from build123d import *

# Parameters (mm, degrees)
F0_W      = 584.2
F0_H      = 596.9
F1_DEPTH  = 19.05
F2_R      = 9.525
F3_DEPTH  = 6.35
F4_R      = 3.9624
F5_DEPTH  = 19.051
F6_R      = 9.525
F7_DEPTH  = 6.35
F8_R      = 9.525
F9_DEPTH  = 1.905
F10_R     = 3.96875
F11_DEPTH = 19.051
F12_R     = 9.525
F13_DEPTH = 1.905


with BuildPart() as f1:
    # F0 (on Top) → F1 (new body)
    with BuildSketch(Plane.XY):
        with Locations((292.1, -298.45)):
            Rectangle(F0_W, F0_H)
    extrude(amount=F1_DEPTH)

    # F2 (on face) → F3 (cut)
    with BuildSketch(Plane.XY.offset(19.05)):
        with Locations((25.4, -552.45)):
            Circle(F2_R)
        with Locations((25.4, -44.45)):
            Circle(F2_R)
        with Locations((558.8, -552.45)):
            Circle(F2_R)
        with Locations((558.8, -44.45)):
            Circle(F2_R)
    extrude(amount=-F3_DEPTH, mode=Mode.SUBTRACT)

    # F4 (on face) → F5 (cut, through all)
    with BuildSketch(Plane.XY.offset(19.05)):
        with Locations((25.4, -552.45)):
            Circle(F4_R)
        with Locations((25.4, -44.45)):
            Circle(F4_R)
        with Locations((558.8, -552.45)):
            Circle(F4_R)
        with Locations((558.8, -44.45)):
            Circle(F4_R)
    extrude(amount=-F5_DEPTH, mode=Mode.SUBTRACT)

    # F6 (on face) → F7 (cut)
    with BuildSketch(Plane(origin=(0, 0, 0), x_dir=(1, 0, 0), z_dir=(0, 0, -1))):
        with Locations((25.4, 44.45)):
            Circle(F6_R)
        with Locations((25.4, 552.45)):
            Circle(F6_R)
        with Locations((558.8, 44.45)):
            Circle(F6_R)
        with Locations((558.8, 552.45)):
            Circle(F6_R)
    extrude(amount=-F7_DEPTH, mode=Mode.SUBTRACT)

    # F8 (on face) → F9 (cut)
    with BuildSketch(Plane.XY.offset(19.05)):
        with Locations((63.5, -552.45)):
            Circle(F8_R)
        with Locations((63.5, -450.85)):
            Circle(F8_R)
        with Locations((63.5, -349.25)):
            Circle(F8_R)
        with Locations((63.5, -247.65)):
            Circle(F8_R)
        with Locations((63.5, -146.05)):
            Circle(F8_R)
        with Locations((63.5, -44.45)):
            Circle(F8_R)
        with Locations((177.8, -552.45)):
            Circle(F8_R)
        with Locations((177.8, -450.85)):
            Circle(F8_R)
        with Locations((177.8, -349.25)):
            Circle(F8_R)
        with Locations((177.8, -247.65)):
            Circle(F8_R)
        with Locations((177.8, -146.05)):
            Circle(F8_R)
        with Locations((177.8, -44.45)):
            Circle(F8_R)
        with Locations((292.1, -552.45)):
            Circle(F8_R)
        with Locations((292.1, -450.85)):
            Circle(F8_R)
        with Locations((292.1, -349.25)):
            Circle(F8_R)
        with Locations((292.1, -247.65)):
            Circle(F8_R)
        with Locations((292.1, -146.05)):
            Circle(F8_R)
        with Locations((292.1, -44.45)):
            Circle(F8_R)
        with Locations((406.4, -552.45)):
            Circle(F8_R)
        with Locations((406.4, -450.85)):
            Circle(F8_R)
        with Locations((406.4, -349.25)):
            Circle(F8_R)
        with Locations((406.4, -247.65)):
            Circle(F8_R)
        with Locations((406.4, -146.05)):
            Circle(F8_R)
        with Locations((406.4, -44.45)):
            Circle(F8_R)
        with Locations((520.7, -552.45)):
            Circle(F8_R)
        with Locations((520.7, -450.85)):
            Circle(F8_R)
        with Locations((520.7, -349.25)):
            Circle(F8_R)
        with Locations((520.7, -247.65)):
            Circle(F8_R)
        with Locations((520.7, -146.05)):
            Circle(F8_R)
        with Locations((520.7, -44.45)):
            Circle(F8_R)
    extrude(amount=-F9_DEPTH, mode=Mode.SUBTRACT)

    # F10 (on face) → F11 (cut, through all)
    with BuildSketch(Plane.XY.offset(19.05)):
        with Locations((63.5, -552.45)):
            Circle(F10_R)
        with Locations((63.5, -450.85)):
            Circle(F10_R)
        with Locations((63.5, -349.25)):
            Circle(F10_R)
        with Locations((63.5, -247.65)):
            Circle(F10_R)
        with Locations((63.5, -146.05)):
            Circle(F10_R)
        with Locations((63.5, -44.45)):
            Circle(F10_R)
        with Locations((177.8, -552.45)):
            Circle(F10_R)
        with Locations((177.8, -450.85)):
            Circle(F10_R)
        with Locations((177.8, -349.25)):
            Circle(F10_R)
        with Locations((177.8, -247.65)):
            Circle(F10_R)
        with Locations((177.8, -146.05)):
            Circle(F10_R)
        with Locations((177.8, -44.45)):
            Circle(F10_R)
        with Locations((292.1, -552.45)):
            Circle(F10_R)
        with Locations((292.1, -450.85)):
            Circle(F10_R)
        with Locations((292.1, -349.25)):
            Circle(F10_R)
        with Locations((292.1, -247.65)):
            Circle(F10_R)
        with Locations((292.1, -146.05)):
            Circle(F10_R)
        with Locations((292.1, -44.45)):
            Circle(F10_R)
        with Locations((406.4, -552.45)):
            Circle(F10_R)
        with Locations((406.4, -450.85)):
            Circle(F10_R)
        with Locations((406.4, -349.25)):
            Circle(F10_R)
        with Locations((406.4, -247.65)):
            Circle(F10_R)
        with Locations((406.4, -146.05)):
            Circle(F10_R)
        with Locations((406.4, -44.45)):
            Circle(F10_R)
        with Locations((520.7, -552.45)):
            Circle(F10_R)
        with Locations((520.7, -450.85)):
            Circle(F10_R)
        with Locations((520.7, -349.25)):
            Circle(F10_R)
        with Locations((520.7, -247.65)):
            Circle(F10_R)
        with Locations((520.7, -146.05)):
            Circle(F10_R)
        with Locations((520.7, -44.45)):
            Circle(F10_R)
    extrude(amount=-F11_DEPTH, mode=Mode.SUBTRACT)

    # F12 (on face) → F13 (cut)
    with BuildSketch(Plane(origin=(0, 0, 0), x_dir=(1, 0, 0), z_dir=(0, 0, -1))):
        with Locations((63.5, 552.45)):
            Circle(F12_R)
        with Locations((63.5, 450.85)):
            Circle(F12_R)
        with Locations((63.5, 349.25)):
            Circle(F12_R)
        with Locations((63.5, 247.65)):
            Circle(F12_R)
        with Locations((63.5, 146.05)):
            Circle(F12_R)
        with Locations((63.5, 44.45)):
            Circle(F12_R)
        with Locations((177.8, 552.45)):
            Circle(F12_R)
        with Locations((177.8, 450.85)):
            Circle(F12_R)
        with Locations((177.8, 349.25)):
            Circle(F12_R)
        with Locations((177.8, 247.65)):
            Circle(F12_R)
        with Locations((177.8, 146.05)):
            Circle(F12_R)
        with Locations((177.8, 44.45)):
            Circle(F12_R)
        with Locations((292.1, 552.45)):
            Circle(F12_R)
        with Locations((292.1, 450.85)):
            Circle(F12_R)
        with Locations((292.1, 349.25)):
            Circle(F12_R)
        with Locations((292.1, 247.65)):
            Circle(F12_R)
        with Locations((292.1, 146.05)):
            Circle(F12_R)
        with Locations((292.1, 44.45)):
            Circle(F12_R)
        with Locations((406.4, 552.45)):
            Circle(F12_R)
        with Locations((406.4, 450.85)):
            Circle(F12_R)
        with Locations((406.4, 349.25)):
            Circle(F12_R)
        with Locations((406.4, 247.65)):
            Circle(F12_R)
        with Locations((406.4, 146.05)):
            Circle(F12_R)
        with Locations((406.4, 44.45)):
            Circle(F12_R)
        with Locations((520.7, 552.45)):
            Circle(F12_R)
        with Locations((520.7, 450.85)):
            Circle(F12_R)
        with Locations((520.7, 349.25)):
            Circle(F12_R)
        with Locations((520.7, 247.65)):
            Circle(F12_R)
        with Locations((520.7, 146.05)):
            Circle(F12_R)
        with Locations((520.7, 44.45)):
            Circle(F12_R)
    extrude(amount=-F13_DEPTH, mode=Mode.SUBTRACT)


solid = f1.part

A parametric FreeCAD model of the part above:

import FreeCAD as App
import Part
import Sketcher
from FreeCAD import Vector
Q = App.Units.Quantity

doc = App.newDocument("Part")
body = doc.addObject("PartDesign::Body", "Body")

sketch1 = doc.addObject("Sketcher::SketchObject", "Sketch")
body.addObject(sketch1)
sketch1.AttachmentSupport = (doc.XY_Plane, [""])
sketch1.MapMode = "FlatFace"
sketch1.addGeometry([
    Part.LineSegment(Vector(0, 0, 0), Vector(0, -597, 0)),
    Part.LineSegment(Vector(0, -597, 0), Vector(584, -597, 0)),
    Part.LineSegment(Vector(584, -597, 0), Vector(584, 0, 0)),
    Part.LineSegment(Vector(584, 0, 0), Vector(0, 0, 0)),
], False)
sketch1.addConstraint([
    Sketcher.Constraint("Coincident", 0, 2, 1, 1),
    Sketcher.Constraint("Coincident", 1, 2, 2, 1),
    Sketcher.Constraint("Coincident", 2, 2, 3, 1),
    Sketcher.Constraint("Coincident", 3, 2, 0, 1),
    Sketcher.Constraint("Vertical", 0),
    Sketcher.Constraint("Horizontal", 1),
    Sketcher.Constraint("Vertical", 2),
    Sketcher.Constraint("Horizontal", 3),
    Sketcher.Constraint("Coincident", 3, 2, -1, 1),
    Sketcher.Constraint("DistanceX", 1, 1, 1, 2, Q("23 in")),
    Sketcher.Constraint("DistanceY", 0, 2, 0, 1, Q("23.5 in")),
])
pad1 = doc.addObject("PartDesign::Pad", "Pad")
body.addObject(pad1)
pad1.Profile = sketch1
pad1.Length = Q("0.75 in")

sketch2 = doc.addObject("Sketcher::SketchObject", "Sketch001")
body.addObject(sketch2)
sketch2.AttachmentSupport = (doc.XY_Plane, [""])
sketch2.MapMode = "FlatFace"
sketch2.AttachmentOffset = App.Placement(Vector(0, 0, 0.75 * 25.4), App.Rotation())
sketch2.addGeometry([
    Part.Circle(Vector(25, -552, 0), Vector(0, 0, 1), 10),
    Part.Circle(Vector(25, -44, 0), Vector(0, 0, 1), 10),
    Part.Circle(Vector(559, -552, 0), Vector(0, 0, 1), 10),
    Part.Circle(Vector(559, -44, 0), Vector(0, 0, 1), 10),
], False)
sketch2.addConstraint([
    Sketcher.Constraint("Equal", 0, 1),
    Sketcher.Constraint("Equal", 1, 2),
    Sketcher.Constraint("Equal", 2, 3),
    Sketcher.Constraint("Horizontal", 0, 3, 2, 3),
    Sketcher.Constraint("Horizontal", 1, 3, 3, 3),
    Sketcher.Constraint("Vertical", 0, 3, 1, 3),
    Sketcher.Constraint("Vertical", 2, 3, 3, 3),
    Sketcher.Constraint("Diameter", 0, Q("0.75 in")),
    Sketcher.Constraint("DistanceX", -1, 1, 0, 3, Q("1 in")),
    Sketcher.Constraint("DistanceX", -1, 1, 2, 3, Q("22 in")),
    Sketcher.Constraint("DistanceY", 0, 3, 1, 3, Q("20 in")),
    Sketcher.Constraint("DistanceY", 0, 3, -1, 1, Q("21.75 in")),
])
pocket1 = doc.addObject("PartDesign::Pocket", "Pocket")
body.addObject(pocket1)
pocket1.Profile = sketch2
pocket1.Length = Q("0.25 in")

sketch3 = doc.addObject("Sketcher::SketchObject", "Sketch002")
body.addObject(sketch3)
sketch3.AttachmentSupport = (doc.XY_Plane, [""])
sketch3.MapMode = "FlatFace"
sketch3.AttachmentOffset = App.Placement(Vector(0, 0, 0.75 * 25.4), App.Rotation())
sketch3.addGeometry([
    Part.Circle(Vector(25.4, -552.5, 0), Vector(0, 0, 1), 4),
    Part.Circle(Vector(25.4, -44.5, 0), Vector(0, 0, 1), 4),
    Part.Circle(Vector(558.8, -552.5, 0), Vector(0, 0, 1), 4),
    Part.Circle(Vector(558.8, -44.5, 0), Vector(0, 0, 1), 4),
], False)
sketch3.addConstraint([
    Sketcher.Constraint("Equal", 0, 1),
    Sketcher.Constraint("Equal", 1, 2),
    Sketcher.Constraint("Equal", 2, 3),
    Sketcher.Constraint("Horizontal", 0, 3, 2, 3),
    Sketcher.Constraint("Horizontal", 1, 3, 3, 3),
    Sketcher.Constraint("Vertical", 0, 3, 1, 3),
    Sketcher.Constraint("Vertical", 2, 3, 3, 3),
    Sketcher.Constraint("Diameter", 0, Q("0.312 in")),
    Sketcher.Constraint("DistanceX", -1, 1, 0, 3, Q("1 in")),
    Sketcher.Constraint("DistanceX", -1, 1, 2, 3, Q("22 in")),
    Sketcher.Constraint("DistanceY", 0, 3, 1, 3, Q("20 in")),
    Sketcher.Constraint("DistanceY", 0, 3, -1, 1, Q("21.75 in")),
])
pocket2 = doc.addObject("PartDesign::Pocket", "Pocket001")
body.addObject(pocket2)
pocket2.Profile = sketch3
pocket2.Type = "ThroughAll"

sketch4 = doc.addObject("Sketcher::SketchObject", "Sketch003")
body.addObject(sketch4)
sketch4.AttachmentSupport = (doc.XY_Plane, [""])
sketch4.MapMode = "FlatFace"
sketch4.addGeometry([
    Part.Circle(Vector(25, -44, 0), Vector(0, 0, 1), 10),
    Part.Circle(Vector(25, -552, 0), Vector(0, 0, 1), 10),
    Part.Circle(Vector(559, -44, 0), Vector(0, 0, 1), 10),
    Part.Circle(Vector(559, -552, 0), Vector(0, 0, 1), 10),
], False)
sketch4.addConstraint([
    Sketcher.Constraint("Equal", 0, 1),
    Sketcher.Constraint("Equal", 1, 2),
    Sketcher.Constraint("Equal", 2, 3),
    Sketcher.Constraint("Horizontal", 0, 3, 2, 3),
    Sketcher.Constraint("Horizontal", 1, 3, 3, 3),
    Sketcher.Constraint("Vertical", 0, 3, 1, 3),
    Sketcher.Constraint("Vertical", 2, 3, 3, 3),
    Sketcher.Constraint("Diameter", 0, Q("0.75 in")),
    Sketcher.Constraint("DistanceX", -1, 1, 0, 3, Q("1 in")),
    Sketcher.Constraint("DistanceX", -1, 1, 2, 3, Q("22 in")),
    Sketcher.Constraint("DistanceY", 1, 3, 0, 3, Q("20 in")),
    Sketcher.Constraint("DistanceY", 0, 3, -1, 1, Q("1.75 in")),
])
pocket3 = doc.addObject("PartDesign::Pocket", "Pocket002")
body.addObject(pocket3)
pocket3.Profile = sketch4
pocket3.Length = Q("0.25 in")
pocket3.Reversed = True

sketch5 = doc.addObject("Sketcher::SketchObject", "Sketch004")
body.addObject(sketch5)
sketch5.AttachmentSupport = (doc.XY_Plane, [""])
sketch5.MapMode = "FlatFace"
sketch5.AttachmentOffset = App.Placement(Vector(0, 0, 0.75 * 25.4), App.Rotation())
sketch5.addGeometry([
    Part.Circle(Vector(64, -552, 0), Vector(0, 0, 1), 10),
    Part.Circle(Vector(64, -451, 0), Vector(0, 0, 1), 10),
    Part.Circle(Vector(64, -349, 0), Vector(0, 0, 1), 10),
    Part.Circle(Vector(64, -248, 0), Vector(0, 0, 1), 10),
    Part.Circle(Vector(64, -146, 0), Vector(0, 0, 1), 10),
    Part.Circle(Vector(64, -44, 0), Vector(0, 0, 1), 10),
    Part.Circle(Vector(178, -552, 0), Vector(0, 0, 1), 10),
    Part.Circle(Vector(178, -451, 0), Vector(0, 0, 1), 10),
    Part.Circle(Vector(178, -349, 0), Vector(0, 0, 1), 10),
    Part.Circle(Vector(178, -248, 0), Vector(0, 0, 1), 10),
    Part.Circle(Vector(178, -146, 0), Vector(0, 0, 1), 10),
    Part.Circle(Vector(178, -44, 0), Vector(0, 0, 1), 10),
    Part.Circle(Vector(292, -552, 0), Vector(0, 0, 1), 10),
    Part.Circle(Vector(292, -451, 0), Vector(0, 0, 1), 10),
    Part.Circle(Vector(292, -349, 0), Vector(0, 0, 1), 10),
    Part.Circle(Vector(292, -248, 0), Vector(0, 0, 1), 10),
    Part.Circle(Vector(292, -146, 0), Vector(0, 0, 1), 10),
    Part.Circle(Vector(292, -44, 0), Vector(0, 0, 1), 10),
    Part.Circle(Vector(406, -552, 0), Vector(0, 0, 1), 10),
    Part.Circle(Vector(406, -451, 0), Vector(0, 0, 1), 10),
    Part.Circle(Vector(406, -349, 0), Vector(0, 0, 1), 10),
    Part.Circle(Vector(406, -248, 0), Vector(0, 0, 1), 10),
    Part.Circle(Vector(406, -146, 0), Vector(0, 0, 1), 10),
    Part.Circle(Vector(406, -44, 0), Vector(0, 0, 1), 10),
    Part.Circle(Vector(521, -552, 0), Vector(0, 0, 1), 10),
    Part.Circle(Vector(521, -451, 0), Vector(0, 0, 1), 10),
    Part.Circle(Vector(521, -349, 0), Vector(0, 0, 1), 10),
    Part.Circle(Vector(521, -248, 0), Vector(0, 0, 1), 10),
    Part.Circle(Vector(521, -146, 0), Vector(0, 0, 1), 10),
    Part.Circle(Vector(521, -44, 0), Vector(0, 0, 1), 10),
], False)
sketch5.addConstraint([
    Sketcher.Constraint("Equal", 0, 1),
    Sketcher.Constraint("Equal", 1, 2),
    Sketcher.Constraint("Equal", 2, 3),
    Sketcher.Constraint("Equal", 3, 4),
    Sketcher.Constraint("Equal", 4, 5),
    Sketcher.Constraint("Equal", 5, 6),
    Sketcher.Constraint("Equal", 6, 7),
    Sketcher.Constraint("Equal", 7, 8),
    Sketcher.Constraint("Equal", 8, 9),
    Sketcher.Constraint("Equal", 9, 10),
    Sketcher.Constraint("Equal", 10, 11),
    Sketcher.Constraint("Equal", 11, 12),
    Sketcher.Constraint("Equal", 12, 13),
    Sketcher.Constraint("Equal", 13, 14),
    Sketcher.Constraint("Equal", 14, 15),
    Sketcher.Constraint("Equal", 15, 16),
    Sketcher.Constraint("Equal", 16, 17),
    Sketcher.Constraint("Equal", 17, 18),
    Sketcher.Constraint("Equal", 18, 19),
    Sketcher.Constraint("Equal", 19, 20),
    Sketcher.Constraint("Equal", 20, 21),
    Sketcher.Constraint("Equal", 21, 22),
    Sketcher.Constraint("Equal", 22, 23),
    Sketcher.Constraint("Equal", 23, 24),
    Sketcher.Constraint("Equal", 24, 25),
    Sketcher.Constraint("Equal", 25, 26),
    Sketcher.Constraint("Equal", 26, 27),
    Sketcher.Constraint("Equal", 27, 28),
    Sketcher.Constraint("Equal", 28, 29),
    Sketcher.Constraint("Horizontal", 0, 3, 6, 3),
    Sketcher.Constraint("Horizontal", 1, 3, 7, 3),
    Sketcher.Constraint("Horizontal", 2, 3, 8, 3),
    Sketcher.Constraint("Horizontal", 3, 3, 9, 3),
    Sketcher.Constraint("Horizontal", 4, 3, 10, 3),
    Sketcher.Constraint("Horizontal", 5, 3, 11, 3),
    Sketcher.Constraint("Horizontal", 6, 3, 12, 3),
    Sketcher.Constraint("Horizontal", 7, 3, 13, 3),
    Sketcher.Constraint("Horizontal", 8, 3, 14, 3),
    Sketcher.Constraint("Horizontal", 9, 3, 15, 3),
    Sketcher.Constraint("Horizontal", 10, 3, 16, 3),
    Sketcher.Constraint("Horizontal", 11, 3, 17, 3),
    Sketcher.Constraint("Horizontal", 12, 3, 18, 3),
    Sketcher.Constraint("Horizontal", 13, 3, 19, 3),
    Sketcher.Constraint("Horizontal", 14, 3, 20, 3),
    Sketcher.Constraint("Horizontal", 15, 3, 21, 3),
    Sketcher.Constraint("Horizontal", 16, 3, 22, 3),
    Sketcher.Constraint("Horizontal", 17, 3, 23, 3),
    Sketcher.Constraint("Horizontal", 18, 3, 24, 3),
    Sketcher.Constraint("Horizontal", 19, 3, 25, 3),
    Sketcher.Constraint("Horizontal", 20, 3, 26, 3),
    Sketcher.Constraint("Horizontal", 21, 3, 27, 3),
    Sketcher.Constraint("Horizontal", 22, 3, 28, 3),
    Sketcher.Constraint("Horizontal", 23, 3, 29, 3),
    Sketcher.Constraint("Vertical", 0, 3, 1, 3),
    Sketcher.Constraint("Vertical", 1, 3, 2, 3),
    Sketcher.Constraint("Vertical", 2, 3, 3, 3),
    Sketcher.Constraint("Vertical", 3, 3, 4, 3),
    Sketcher.Constraint("Vertical", 4, 3, 5, 3),
    Sketcher.Constraint("Vertical", 6, 3, 7, 3),
    Sketcher.Constraint("Vertical", 7, 3, 8, 3),
    Sketcher.Constraint("Vertical", 8, 3, 9, 3),
    Sketcher.Constraint("Vertical", 9, 3, 10, 3),
    Sketcher.Constraint("Vertical", 10, 3, 11, 3),
    Sketcher.Constraint("Vertical", 12, 3, 13, 3),
    Sketcher.Constraint("Vertical", 13, 3, 14, 3),
    Sketcher.Constraint("Vertical", 14, 3, 15, 3),
    Sketcher.Constraint("Vertical", 15, 3, 16, 3),
    Sketcher.Constraint("Vertical", 16, 3, 17, 3),
    Sketcher.Constraint("Vertical", 18, 3, 19, 3),
    Sketcher.Constraint("Vertical", 19, 3, 20, 3),
    Sketcher.Constraint("Vertical", 20, 3, 21, 3),
    Sketcher.Constraint("Vertical", 21, 3, 22, 3),
    Sketcher.Constraint("Vertical", 22, 3, 23, 3),
    Sketcher.Constraint("Vertical", 24, 3, 25, 3),
    Sketcher.Constraint("Vertical", 25, 3, 26, 3),
    Sketcher.Constraint("Vertical", 26, 3, 27, 3),
    Sketcher.Constraint("Vertical", 27, 3, 28, 3),
    Sketcher.Constraint("Vertical", 28, 3, 29, 3),
    Sketcher.Constraint("Diameter", 0, Q("0.75 in")),
    Sketcher.Constraint("DistanceX", -1, 1, 6, 3, Q("7 in")),
    Sketcher.Constraint("DistanceX", -1, 1, 18, 3, Q("16 in")),
    Sketcher.Constraint("DistanceY", 0, 3, 1, 3, Q("4 in")),
    Sketcher.Constraint("DistanceY", 1, 3, 2, 3, Q("4 in")),
    Sketcher.Constraint("DistanceY", 2, 3, 3, 3, Q("4 in")),
    Sketcher.Constraint("DistanceY", 3, 3, 4, 3, Q("4 in")),
    Sketcher.Constraint("DistanceY", 4, 3, 5, 3, Q("4 in")),
    Sketcher.Constraint("DistanceX", 0, 3, 12, 3, Q("9 in")),
    Sketcher.Constraint("DistanceX", 12, 3, 24, 3, Q("9 in")),
    Sketcher.Constraint("DistanceX", -1, 1, 0, 3, Q("2.5 in")),
    Sketcher.Constraint("DistanceY", 0, 3, -1, 1, Q("21.75 in")),
])
pocket4 = doc.addObject("PartDesign::Pocket", "Pocket003")
body.addObject(pocket4)
pocket4.Profile = sketch5
pocket4.Length = Q("0.075 in")

sketch6 = doc.addObject("Sketcher::SketchObject", "Sketch005")
body.addObject(sketch6)
sketch6.AttachmentSupport = (doc.XY_Plane, [""])
sketch6.MapMode = "FlatFace"
sketch6.AttachmentOffset = App.Placement(Vector(0, 0, 0.75 * 25.4), App.Rotation())
sketch6.addGeometry([
    Part.Circle(Vector(63.5, -552.5, 0), Vector(0, 0, 1), 4),
    Part.Circle(Vector(63.5, -450.9, 0), Vector(0, 0, 1), 4),
    Part.Circle(Vector(63.5, -349.2, 0), Vector(0, 0, 1), 4),
    Part.Circle(Vector(63.5, -247.7, 0), Vector(0, 0, 1), 4),
    Part.Circle(Vector(63.5, -146.1, 0), Vector(0, 0, 1), 4),
    Part.Circle(Vector(63.5, -44.5, 0), Vector(0, 0, 1), 4),
    Part.Circle(Vector(177.8, -552.5, 0), Vector(0, 0, 1), 4),
    Part.Circle(Vector(177.8, -450.9, 0), Vector(0, 0, 1), 4),
    Part.Circle(Vector(177.8, -349.2, 0), Vector(0, 0, 1), 4),
    Part.Circle(Vector(177.8, -247.7, 0), Vector(0, 0, 1), 4),
    Part.Circle(Vector(177.8, -146.1, 0), Vector(0, 0, 1), 4),
    Part.Circle(Vector(177.8, -44.5, 0), Vector(0, 0, 1), 4),
    Part.Circle(Vector(292.1, -552.5, 0), Vector(0, 0, 1), 4),
    Part.Circle(Vector(292.1, -450.9, 0), Vector(0, 0, 1), 4),
    Part.Circle(Vector(292.1, -349.2, 0), Vector(0, 0, 1), 4),
    Part.Circle(Vector(292.1, -247.7, 0), Vector(0, 0, 1), 4),
    Part.Circle(Vector(292.1, -146.1, 0), Vector(0, 0, 1), 4),
    Part.Circle(Vector(292.1, -44.5, 0), Vector(0, 0, 1), 4),
    Part.Circle(Vector(406.4, -552.5, 0), Vector(0, 0, 1), 4),
    Part.Circle(Vector(406.4, -450.9, 0), Vector(0, 0, 1), 4),
    Part.Circle(Vector(406.4, -349.2, 0), Vector(0, 0, 1), 4),
    Part.Circle(Vector(406.4, -247.7, 0), Vector(0, 0, 1), 4),
    Part.Circle(Vector(406.4, -146.1, 0), Vector(0, 0, 1), 4),
    Part.Circle(Vector(406.4, -44.5, 0), Vector(0, 0, 1), 4),
    Part.Circle(Vector(520.7, -552.5, 0), Vector(0, 0, 1), 4),
    Part.Circle(Vector(520.7, -450.9, 0), Vector(0, 0, 1), 4),
    Part.Circle(Vector(520.7, -349.2, 0), Vector(0, 0, 1), 4),
    Part.Circle(Vector(520.7, -247.7, 0), Vector(0, 0, 1), 4),
    Part.Circle(Vector(520.7, -146.1, 0), Vector(0, 0, 1), 4),
    Part.Circle(Vector(520.7, -44.5, 0), Vector(0, 0, 1), 4),
], False)
sketch6.addConstraint([
    Sketcher.Constraint("Equal", 0, 1),
    Sketcher.Constraint("Equal", 1, 2),
    Sketcher.Constraint("Equal", 2, 3),
    Sketcher.Constraint("Equal", 3, 4),
    Sketcher.Constraint("Equal", 4, 5),
    Sketcher.Constraint("Equal", 5, 6),
    Sketcher.Constraint("Equal", 6, 7),
    Sketcher.Constraint("Equal", 7, 8),
    Sketcher.Constraint("Equal", 8, 9),
    Sketcher.Constraint("Equal", 9, 10),
    Sketcher.Constraint("Equal", 10, 11),
    Sketcher.Constraint("Equal", 11, 12),
    Sketcher.Constraint("Equal", 12, 13),
    Sketcher.Constraint("Equal", 13, 14),
    Sketcher.Constraint("Equal", 14, 15),
    Sketcher.Constraint("Equal", 15, 16),
    Sketcher.Constraint("Equal", 16, 17),
    Sketcher.Constraint("Equal", 17, 18),
    Sketcher.Constraint("Equal", 18, 19),
    Sketcher.Constraint("Equal", 19, 20),
    Sketcher.Constraint("Equal", 20, 21),
    Sketcher.Constraint("Equal", 21, 22),
    Sketcher.Constraint("Equal", 22, 23),
    Sketcher.Constraint("Equal", 23, 24),
    Sketcher.Constraint("Equal", 24, 25),
    Sketcher.Constraint("Equal", 25, 26),
    Sketcher.Constraint("Equal", 26, 27),
    Sketcher.Constraint("Equal", 27, 28),
    Sketcher.Constraint("Equal", 28, 29),
    Sketcher.Constraint("Horizontal", 0, 3, 6, 3),
    Sketcher.Constraint("Horizontal", 1, 3, 7, 3),
    Sketcher.Constraint("Horizontal", 2, 3, 8, 3),
    Sketcher.Constraint("Horizontal", 3, 3, 9, 3),
    Sketcher.Constraint("Horizontal", 4, 3, 10, 3),
    Sketcher.Constraint("Horizontal", 5, 3, 11, 3),
    Sketcher.Constraint("Horizontal", 6, 3, 12, 3),
    Sketcher.Constraint("Horizontal", 7, 3, 13, 3),
    Sketcher.Constraint("Horizontal", 8, 3, 14, 3),
    Sketcher.Constraint("Horizontal", 9, 3, 15, 3),
    Sketcher.Constraint("Horizontal", 10, 3, 16, 3),
    Sketcher.Constraint("Horizontal", 11, 3, 17, 3),
    Sketcher.Constraint("Horizontal", 12, 3, 18, 3),
    Sketcher.Constraint("Horizontal", 13, 3, 19, 3),
    Sketcher.Constraint("Horizontal", 14, 3, 20, 3),
    Sketcher.Constraint("Horizontal", 15, 3, 21, 3),
    Sketcher.Constraint("Horizontal", 16, 3, 22, 3),
    Sketcher.Constraint("Horizontal", 17, 3, 23, 3),
    Sketcher.Constraint("Horizontal", 18, 3, 24, 3),
    Sketcher.Constraint("Horizontal", 19, 3, 25, 3),
    Sketcher.Constraint("Horizontal", 20, 3, 26, 3),
    Sketcher.Constraint("Horizontal", 21, 3, 27, 3),
    Sketcher.Constraint("Horizontal", 22, 3, 28, 3),
    Sketcher.Constraint("Horizontal", 23, 3, 29, 3),
    Sketcher.Constraint("Vertical", 0, 3, 1, 3),
    Sketcher.Constraint("Vertical", 1, 3, 2, 3),
    Sketcher.Constraint("Vertical", 2, 3, 3, 3),
    Sketcher.Constraint("Vertical", 3, 3, 4, 3),
    Sketcher.Constraint("Vertical", 4, 3, 5, 3),
    Sketcher.Constraint("Vertical", 6, 3, 7, 3),
    Sketcher.Constraint("Vertical", 7, 3, 8, 3),
    Sketcher.Constraint("Vertical", 8, 3, 9, 3),
    Sketcher.Constraint("Vertical", 9, 3, 10, 3),
    Sketcher.Constraint("Vertical", 10, 3, 11, 3),
    Sketcher.Constraint("Vertical", 12, 3, 13, 3),
    Sketcher.Constraint("Vertical", 13, 3, 14, 3),
    Sketcher.Constraint("Vertical", 14, 3, 15, 3),
    Sketcher.Constraint("Vertical", 15, 3, 16, 3),
    Sketcher.Constraint("Vertical", 16, 3, 17, 3),
    Sketcher.Constraint("Vertical", 18, 3, 19, 3),
    Sketcher.Constraint("Vertical", 19, 3, 20, 3),
    Sketcher.Constraint("Vertical", 20, 3, 21, 3),
    Sketcher.Constraint("Vertical", 21, 3, 22, 3),
    Sketcher.Constraint("Vertical", 22, 3, 23, 3),
    Sketcher.Constraint("Vertical", 24, 3, 25, 3),
    Sketcher.Constraint("Vertical", 25, 3, 26, 3),
    Sketcher.Constraint("Vertical", 26, 3, 27, 3),
    Sketcher.Constraint("Vertical", 27, 3, 28, 3),
    Sketcher.Constraint("Vertical", 28, 3, 29, 3),
    Sketcher.Constraint("Diameter", 0, Q("0.3125 in")),
    Sketcher.Constraint("DistanceX", -1, 1, 6, 3, Q("7 in")),
    Sketcher.Constraint("DistanceX", -1, 1, 18, 3, Q("16 in")),
    Sketcher.Constraint("DistanceY", 0, 3, 1, 3, Q("4 in")),
    Sketcher.Constraint("DistanceY", 1, 3, 2, 3, Q("4 in")),
    Sketcher.Constraint("DistanceY", 2, 3, 3, 3, Q("4 in")),
    Sketcher.Constraint("DistanceY", 3, 3, 4, 3, Q("4 in")),
    Sketcher.Constraint("DistanceY", 4, 3, 5, 3, Q("4 in")),
    Sketcher.Constraint("DistanceX", 0, 3, 12, 3, Q("9 in")),
    Sketcher.Constraint("DistanceX", 12, 3, 24, 3, Q("9 in")),
    Sketcher.Constraint("DistanceX", -1, 1, 0, 3, Q("2.5 in")),
    Sketcher.Constraint("DistanceY", 0, 3, -1, 1, Q("21.75 in")),
])
pocket5 = doc.addObject("PartDesign::Pocket", "Pocket004")
body.addObject(pocket5)
pocket5.Profile = sketch6
pocket5.Type = "ThroughAll"

sketch7 = doc.addObject("Sketcher::SketchObject", "Sketch006")
body.addObject(sketch7)
sketch7.AttachmentSupport = (doc.XY_Plane, [""])
sketch7.MapMode = "FlatFace"
sketch7.addGeometry([
    Part.Circle(Vector(64, -552, 0), Vector(0, 0, 1), 10),
    Part.Circle(Vector(64, -451, 0), Vector(0, 0, 1), 10),
    Part.Circle(Vector(64, -349, 0), Vector(0, 0, 1), 10),
    Part.Circle(Vector(64, -248, 0), Vector(0, 0, 1), 10),
    Part.Circle(Vector(64, -146, 0), Vector(0, 0, 1), 10),
    Part.Circle(Vector(64, -44, 0), Vector(0, 0, 1), 10),
    Part.Circle(Vector(178, -552, 0), Vector(0, 0, 1), 10),
    Part.Circle(Vector(178, -451, 0), Vector(0, 0, 1), 10),
    Part.Circle(Vector(178, -349, 0), Vector(0, 0, 1), 10),
    Part.Circle(Vector(178, -248, 0), Vector(0, 0, 1), 10),
    Part.Circle(Vector(178, -146, 0), Vector(0, 0, 1), 10),
    Part.Circle(Vector(178, -44, 0), Vector(0, 0, 1), 10),
    Part.Circle(Vector(292, -552, 0), Vector(0, 0, 1), 10),
    Part.Circle(Vector(292, -451, 0), Vector(0, 0, 1), 10),
    Part.Circle(Vector(292, -349, 0), Vector(0, 0, 1), 10),
    Part.Circle(Vector(292, -248, 0), Vector(0, 0, 1), 10),
    Part.Circle(Vector(292, -146, 0), Vector(0, 0, 1), 10),
    Part.Circle(Vector(292, -44, 0), Vector(0, 0, 1), 10),
    Part.Circle(Vector(406, -552, 0), Vector(0, 0, 1), 10),
    Part.Circle(Vector(406, -451, 0), Vector(0, 0, 1), 10),
    Part.Circle(Vector(406, -349, 0), Vector(0, 0, 1), 10),
    Part.Circle(Vector(406, -248, 0), Vector(0, 0, 1), 10),
    Part.Circle(Vector(406, -146, 0), Vector(0, 0, 1), 10),
    Part.Circle(Vector(406, -44, 0), Vector(0, 0, 1), 10),
    Part.Circle(Vector(521, -552, 0), Vector(0, 0, 1), 10),
    Part.Circle(Vector(521, -451, 0), Vector(0, 0, 1), 10),
    Part.Circle(Vector(521, -349, 0), Vector(0, 0, 1), 10),
    Part.Circle(Vector(521, -248, 0), Vector(0, 0, 1), 10),
    Part.Circle(Vector(521, -146, 0), Vector(0, 0, 1), 10),
    Part.Circle(Vector(521, -44, 0), Vector(0, 0, 1), 10),
], False)
sketch7.addConstraint([
    Sketcher.Constraint("Equal", 0, 1),
    Sketcher.Constraint("Equal", 1, 2),
    Sketcher.Constraint("Equal", 2, 3),
    Sketcher.Constraint("Equal", 3, 4),
    Sketcher.Constraint("Equal", 4, 5),
    Sketcher.Constraint("Equal", 5, 6),
    Sketcher.Constraint("Equal", 6, 7),
    Sketcher.Constraint("Equal", 7, 8),
    Sketcher.Constraint("Equal", 8, 9),
    Sketcher.Constraint("Equal", 9, 10),
    Sketcher.Constraint("Equal", 10, 11),
    Sketcher.Constraint("Equal", 11, 12),
    Sketcher.Constraint("Equal", 12, 13),
    Sketcher.Constraint("Equal", 13, 14),
    Sketcher.Constraint("Equal", 14, 15),
    Sketcher.Constraint("Equal", 15, 16),
    Sketcher.Constraint("Equal", 16, 17),
    Sketcher.Constraint("Equal", 17, 18),
    Sketcher.Constraint("Equal", 18, 19),
    Sketcher.Constraint("Equal", 19, 20),
    Sketcher.Constraint("Equal", 20, 21),
    Sketcher.Constraint("Equal", 21, 22),
    Sketcher.Constraint("Equal", 22, 23),
    Sketcher.Constraint("Equal", 23, 24),
    Sketcher.Constraint("Equal", 24, 25),
    Sketcher.Constraint("Equal", 25, 26),
    Sketcher.Constraint("Equal", 26, 27),
    Sketcher.Constraint("Equal", 27, 28),
    Sketcher.Constraint("Equal", 28, 29),
    Sketcher.Constraint("Horizontal", 0, 3, 6, 3),
    Sketcher.Constraint("Horizontal", 1, 3, 7, 3),
    Sketcher.Constraint("Horizontal", 2, 3, 8, 3),
    Sketcher.Constraint("Horizontal", 3, 3, 9, 3),
    Sketcher.Constraint("Horizontal", 4, 3, 10, 3),
    Sketcher.Constraint("Horizontal", 5, 3, 11, 3),
    Sketcher.Constraint("Horizontal", 6, 3, 12, 3),
    Sketcher.Constraint("Horizontal", 7, 3, 13, 3),
    Sketcher.Constraint("Horizontal", 8, 3, 14, 3),
    Sketcher.Constraint("Horizontal", 9, 3, 15, 3),
    Sketcher.Constraint("Horizontal", 10, 3, 16, 3),
    Sketcher.Constraint("Horizontal", 11, 3, 17, 3),
    Sketcher.Constraint("Horizontal", 12, 3, 18, 3),
    Sketcher.Constraint("Horizontal", 13, 3, 19, 3),
    Sketcher.Constraint("Horizontal", 14, 3, 20, 3),
    Sketcher.Constraint("Horizontal", 15, 3, 21, 3),
    Sketcher.Constraint("Horizontal", 16, 3, 22, 3),
    Sketcher.Constraint("Horizontal", 17, 3, 23, 3),
    Sketcher.Constraint("Horizontal", 18, 3, 24, 3),
    Sketcher.Constraint("Horizontal", 19, 3, 25, 3),
    Sketcher.Constraint("Horizontal", 20, 3, 26, 3),
    Sketcher.Constraint("Horizontal", 21, 3, 27, 3),
    Sketcher.Constraint("Horizontal", 22, 3, 28, 3),
    Sketcher.Constraint("Horizontal", 23, 3, 29, 3),
    Sketcher.Constraint("Vertical", 0, 3, 1, 3),
    Sketcher.Constraint("Vertical", 1, 3, 2, 3),
    Sketcher.Constraint("Vertical", 2, 3, 3, 3),
    Sketcher.Constraint("Vertical", 3, 3, 4, 3),
    Sketcher.Constraint("Vertical", 4, 3, 5, 3),
    Sketcher.Constraint("Vertical", 6, 3, 7, 3),
    Sketcher.Constraint("Vertical", 7, 3, 8, 3),
    Sketcher.Constraint("Vertical", 8, 3, 9, 3),
    Sketcher.Constraint("Vertical", 9, 3, 10, 3),
    Sketcher.Constraint("Vertical", 10, 3, 11, 3),
    Sketcher.Constraint("Vertical", 12, 3, 13, 3),
    Sketcher.Constraint("Vertical", 13, 3, 14, 3),
    Sketcher.Constraint("Vertical", 14, 3, 15, 3),
    Sketcher.Constraint("Vertical", 15, 3, 16, 3),
    Sketcher.Constraint("Vertical", 16, 3, 17, 3),
    Sketcher.Constraint("Vertical", 18, 3, 19, 3),
    Sketcher.Constraint("Vertical", 19, 3, 20, 3),
    Sketcher.Constraint("Vertical", 20, 3, 21, 3),
    Sketcher.Constraint("Vertical", 21, 3, 22, 3),
    Sketcher.Constraint("Vertical", 22, 3, 23, 3),
    Sketcher.Constraint("Vertical", 24, 3, 25, 3),
    Sketcher.Constraint("Vertical", 25, 3, 26, 3),
    Sketcher.Constraint("Vertical", 26, 3, 27, 3),
    Sketcher.Constraint("Vertical", 27, 3, 28, 3),
    Sketcher.Constraint("Vertical", 28, 3, 29, 3),
    Sketcher.Constraint("Diameter", 0, Q("0.75 in")),
    Sketcher.Constraint("DistanceX", -1, 1, 6, 3, Q("7 in")),
    Sketcher.Constraint("DistanceX", -1, 1, 18, 3, Q("16 in")),
    Sketcher.Constraint("DistanceY", 0, 3, 1, 3, Q("4 in")),
    Sketcher.Constraint("DistanceY", 1, 3, 2, 3, Q("4 in")),
    Sketcher.Constraint("DistanceY", 2, 3, 3, 3, Q("4 in")),
    Sketcher.Constraint("DistanceY", 3, 3, 4, 3, Q("4 in")),
    Sketcher.Constraint("DistanceY", 4, 3, 5, 3, Q("4 in")),
    Sketcher.Constraint("DistanceX", 0, 3, 12, 3, Q("9 in")),
    Sketcher.Constraint("DistanceX", 12, 3, 24, 3, Q("9 in")),
    Sketcher.Constraint("DistanceX", -1, 1, 0, 3, Q("2.5 in")),
    Sketcher.Constraint("DistanceY", 0, 3, -1, 1, Q("21.75 in")),
])
pocket6 = doc.addObject("PartDesign::Pocket", "Pocket005")
body.addObject(pocket6)
pocket6.Profile = sketch7
pocket6.Length = Q("0.075 in")
pocket6.Reversed = True

doc.recompute()
